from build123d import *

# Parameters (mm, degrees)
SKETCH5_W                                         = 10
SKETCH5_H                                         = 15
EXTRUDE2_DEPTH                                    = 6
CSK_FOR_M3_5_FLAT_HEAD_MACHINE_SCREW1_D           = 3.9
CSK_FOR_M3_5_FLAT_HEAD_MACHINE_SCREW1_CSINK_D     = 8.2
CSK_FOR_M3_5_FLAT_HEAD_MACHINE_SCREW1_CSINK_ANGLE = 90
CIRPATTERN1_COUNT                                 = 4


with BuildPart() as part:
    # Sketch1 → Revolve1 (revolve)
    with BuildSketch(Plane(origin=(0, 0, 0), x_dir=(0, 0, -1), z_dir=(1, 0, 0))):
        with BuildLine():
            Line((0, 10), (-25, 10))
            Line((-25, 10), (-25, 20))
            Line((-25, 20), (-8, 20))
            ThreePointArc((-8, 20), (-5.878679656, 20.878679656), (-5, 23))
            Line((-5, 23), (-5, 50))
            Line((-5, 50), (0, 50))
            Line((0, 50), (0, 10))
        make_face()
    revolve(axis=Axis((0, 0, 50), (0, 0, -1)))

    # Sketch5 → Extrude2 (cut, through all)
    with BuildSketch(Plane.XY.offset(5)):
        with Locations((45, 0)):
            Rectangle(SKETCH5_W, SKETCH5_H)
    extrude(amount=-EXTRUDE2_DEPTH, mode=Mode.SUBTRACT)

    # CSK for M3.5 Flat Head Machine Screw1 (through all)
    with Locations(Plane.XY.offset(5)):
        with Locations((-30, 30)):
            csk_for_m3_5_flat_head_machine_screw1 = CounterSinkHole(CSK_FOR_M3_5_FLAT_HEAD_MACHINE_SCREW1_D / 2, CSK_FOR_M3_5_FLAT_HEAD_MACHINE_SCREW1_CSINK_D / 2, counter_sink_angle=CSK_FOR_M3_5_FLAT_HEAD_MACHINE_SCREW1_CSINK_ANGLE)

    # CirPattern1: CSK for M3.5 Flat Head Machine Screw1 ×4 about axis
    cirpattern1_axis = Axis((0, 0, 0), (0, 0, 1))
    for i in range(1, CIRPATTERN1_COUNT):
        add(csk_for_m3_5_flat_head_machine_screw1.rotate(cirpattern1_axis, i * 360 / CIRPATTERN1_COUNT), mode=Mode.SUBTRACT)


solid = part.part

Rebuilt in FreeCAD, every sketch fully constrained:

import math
import FreeCAD as App
import Part
import Sketcher
from FreeCAD import Vector
Q = App.Units.Quantity


def add_polygon(sketch, points):
    """Adds a closed chain of lines whose ends are joined by coincident constraints."""
    first, n = sketch.GeometryCount, len(points)
    for a, b in zip(points, points[1:] + points[:1]):
        sketch.addGeometry(Part.LineSegment(App.Vector(*a, 0), App.Vector(*b, 0)), False)
    for i in range(n):
        sketch.addConstraint(Sketcher.Constraint("Coincident", first + i, 2, first + (i + 1) % n, 1))

doc = App.newDocument("Part")
params = doc.addObject("Spreadsheet::Sheet", "Params")
for row, (alias, value) in enumerate([
    ("sketch1_radius", "3 mm"),
    ("sketch1_width", "40 mm"),
    ("sketch1_width2", "27 mm"),
    ("sketch1_height", "25 mm"),
    ("sketch1_height2", "5 mm"),
    ("revolution_angle", "360 deg"),
    ("sketch2_width", "10 mm"),
    ("sketch2_height", "15 mm"),
    ("sketch3_diameter", "3.9 mm"),
    ("hole_diameter", "3.9 mm"),
    ("hole_csink_diameter", "8.2 mm"),
], start=1):
    params.set(f"A{row}", alias)
    params.set(f"B{row}", "=" + value)
    params.setAlias(f"B{row}", alias)

body = doc.addObject("PartDesign::Body", "Body")

# Sketch on YZ plane
sketch1 = body.newObject("Sketcher::SketchObject", "Sketch")
sketch1.AttachmentSupport = (doc.getObject("YZ_Plane"), [""])
sketch1.MapMode = "FlatFace"
sketch1.addGeometry([
    Part.LineSegment(Vector(10, 25, 0), Vector(10, 0, 0)),  # 0
    Part.LineSegment(Vector(10, 0, 0), Vector(50, 0, 0)),  # 1
    Part.LineSegment(Vector(50, 0, 0), Vector(50, 5, 0)),  # 2
    Part.LineSegment(Vector(50, 5, 0), Vector(23, 5, 0)),  # 3
    Part.ArcOfCircle(Part.Circle(Vector(23, 8, 0), Vector(0, 0, 1), 3), math.radians(180), math.radians(270)),  # 4
    Part.LineSegment(Vector(20, 8, 0), Vector(20, 25, 0)),  # 5
    Part.LineSegment(Vector(20, 25, 0), Vector(10, 25, 0)),  # 6
], False)
sketch1.addConstraint([
    Sketcher.Constraint("Coincident", 0, 2, 1, 1),
    Sketcher.Constraint("Coincident", 1, 2, 2, 1),
    Sketcher.Constraint("Coincident", 2, 2, 3, 1),
    Sketcher.Constraint("Tangent", 3, 2, 4, 2),
    Sketcher.Constraint("Tangent", 4, 1, 5, 1),
    Sketcher.Constraint("Coincident", 5, 2, 6, 1),
    Sketcher.Constraint("Coincident", 6, 2, 0, 1),
    Sketcher.Constraint("Vertical", 0),
    Sketcher.Constraint("Horizontal", 1),
    Sketcher.Constraint("Vertical", 2),
    Sketcher.Constraint("Horizontal", 3),
    Sketcher.Constraint("Vertical", 5),
    Sketcher.Constraint("Horizontal", 6),
    Sketcher.Constraint("PointOnObject", 0, 2, -1),
    Sketcher.Constraint("Radius", 4, Q("3 mm")),
    Sketcher.Constraint("DistanceX", 1, 1, 1, 2, Q("40 mm")),
    Sketcher.Constraint("DistanceX", 3, 2, 3, 1, Q("27 mm")),
    Sketcher.Constraint("DistanceY", 0, 2, 0, 1, Q("25 mm")),
    Sketcher.Constraint("DistanceY", 2, 1, 2, 2, Q("5 mm")),
    Sketcher.Constraint("DistanceX", -1, 1, 4, 3, Q("23 mm")),
])
sketch1.setExpression("Constraints[14]", "Params.sketch1_radius")
sketch1.setExpression("Constraints[15]", "Params.sketch1_width")
sketch1.setExpression("Constraints[16]", "Params.sketch1_width2")
sketch1.setExpression("Constraints[17]", "Params.sketch1_height")
sketch1.setExpression("Constraints[18]", "Params.sketch1_height2")
revolution = body.newObject("PartDesign::Revolution", "Revolution")
revolution.Profile = sketch1
revolution.ReferenceAxis = (sketch1, ["V_Axis"])
revolution.setExpression("Angle", "Params.revolution_angle")

# Sketch on XY plane
sketch2 = body.newObject("Sketcher::SketchObject", "Sketch001")
sketch2.AttachmentSupport = (doc.getObject("XY_Plane"), [""])
sketch2.MapMode = "FlatFace"
sketch2.AttachmentOffset = App.Placement(Vector(0, 0, 5), App.Rotation())
add_polygon(sketch2, [(40, 7.5), (40, -7.5), (50, -7.5), (50, 7.5)])  # lines 0-3
sketch2.addConstraint([
    Sketcher.Constraint("Vertical", 0),
    Sketcher.Constraint("Horizontal", 1),
    Sketcher.Constraint("Vertical", 2),
    Sketcher.Constraint("Horizontal", 3),
    Sketcher.Constraint("DistanceX", 1, 1, 1, 2, Q("10 mm")),
    Sketcher.Constraint("DistanceY", 0, 2, 0, 1, Q("15 mm")),
    Sketcher.Constraint("DistanceX", -1, 1, 0, 2, Q("40 mm")),
    Sketcher.Constraint("DistanceY", 0, 2, -1, 1, Q("7.5 mm")),
])
sketch2.setExpression("Constraints[8]", "Params.sketch2_width")
sketch2.setExpression("Constraints[9]", "Params.sketch2_height")
pocket1 = body.newObject("PartDesign::Pocket", "Pocket")
pocket1.Profile = sketch2
pocket1.Type = "ThroughAll"

# Sketch on XY plane
sketch3 = body.newObject("Sketcher::SketchObject", "Sketch002")
sketch3.AttachmentSupport = (doc.getObject("XY_Plane"), [""])
sketch3.MapMode = "FlatFace"
sketch3.AttachmentOffset = App.Placement(Vector(0, 0, 5), App.Rotation())
sketch3.addGeometry(Part.Circle(Vector(-30, 30, 0), Vector(0, 0, 1), 1.95), False)
sketch3.addConstraint([
    Sketcher.Constraint("Diameter", 0, Q("3.9 mm")),
    Sketcher.Constraint("DistanceX", 0, 3, -1, 1, Q("30 mm")),
    Sketcher.Constraint("DistanceY", -1, 1, 0, 3, Q("30 mm")),
])
sketch3.setExpression("Constraints[0]", "Params.sketch3_diameter")
doc.recompute()
hole = body.newObject("PartDesign::Hole", "Hole")
hole.Profile = sketch3
hole.ThreadType = "None"
hole.setExpression("Diameter", "Params.hole_diameter")
hole.DepthType = "ThroughAll"
hole.HoleCutType = "Countersink"
hole.setExpression("HoleCutDiameter", "Params.hole_csink_diameter")
hole.HoleCutCountersinkAngle = 90
doc.recompute()

polarpattern = body.newObject("PartDesign::PolarPattern", "PolarPattern")
polarpattern.Originals = [hole]
polarpattern.Axis = (doc.getObject("Z_Axis"), [""])
polarpattern.Angle = 360
polarpattern.Occurrences = 4
body.Tip = polarpattern

doc.recompute()
